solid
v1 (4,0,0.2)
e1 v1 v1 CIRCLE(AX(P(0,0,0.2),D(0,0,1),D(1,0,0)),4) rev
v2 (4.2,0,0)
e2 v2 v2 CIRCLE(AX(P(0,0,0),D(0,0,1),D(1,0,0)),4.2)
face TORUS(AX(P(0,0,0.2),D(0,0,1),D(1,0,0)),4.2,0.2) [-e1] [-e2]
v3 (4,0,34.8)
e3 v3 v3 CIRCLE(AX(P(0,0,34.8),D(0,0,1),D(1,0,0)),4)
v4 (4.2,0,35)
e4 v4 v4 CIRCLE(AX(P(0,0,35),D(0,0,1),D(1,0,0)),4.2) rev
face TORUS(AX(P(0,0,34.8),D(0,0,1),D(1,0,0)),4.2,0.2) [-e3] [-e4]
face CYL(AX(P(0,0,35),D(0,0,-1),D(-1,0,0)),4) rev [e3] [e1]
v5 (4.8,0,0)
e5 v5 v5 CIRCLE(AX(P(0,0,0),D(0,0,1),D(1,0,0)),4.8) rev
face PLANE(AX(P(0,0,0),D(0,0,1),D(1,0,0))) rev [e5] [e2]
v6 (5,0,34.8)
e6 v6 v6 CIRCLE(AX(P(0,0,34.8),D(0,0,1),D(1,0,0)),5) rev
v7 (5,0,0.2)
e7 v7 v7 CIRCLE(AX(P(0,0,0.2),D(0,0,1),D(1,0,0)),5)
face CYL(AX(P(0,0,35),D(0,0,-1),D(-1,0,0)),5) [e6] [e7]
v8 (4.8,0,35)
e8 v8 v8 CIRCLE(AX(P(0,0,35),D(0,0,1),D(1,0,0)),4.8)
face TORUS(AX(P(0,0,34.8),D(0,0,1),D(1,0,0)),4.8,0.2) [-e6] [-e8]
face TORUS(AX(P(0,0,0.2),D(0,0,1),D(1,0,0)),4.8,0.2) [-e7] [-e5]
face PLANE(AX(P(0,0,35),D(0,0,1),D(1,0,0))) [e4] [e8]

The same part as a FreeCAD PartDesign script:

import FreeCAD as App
import Part
import Sketcher
from FreeCAD import Vector


def edges_at(feature, points):
    """Names of the edges that pass closest to the given points."""
    edges = feature.Shape.Edges
    near = lambda p: min(range(len(edges)), key=lambda i: edges[i].distToShape(Part.Vertex(*p))[0])
    return sorted({f"Edge{near(p) + 1}" for p in points})

doc = App.newDocument("Part")
body = doc.addObject("PartDesign::Body", "Body")

# Sketch on XY plane
sketch1 = body.newObject("Sketcher::SketchObject", "Sketch")
sketch1.AttachmentSupport = (doc.getObject("XY_Plane"), [""])
sketch1.MapMode = "FlatFace"
sketch1.addGeometry([
    Part.Circle(Vector(0, 0, 0), Vector(0, 0, 1), 5),
    Part.Circle(Vector(0, 0, 0), Vector(0, 0, 1), 4),
], False)
sketch1.addConstraint([
    Sketcher.Constraint("Coincident", 0, 3, -1, 1),
    Sketcher.Constraint("Coincident", 1, 3, -1, 1),
    Sketcher.Constraint("Diameter", 0, 10.0),
    Sketcher.Constraint("Diameter", 1, 8.0),
])
pad1 = body.newObject("PartDesign::Pad", "Pad")
pad1.Profile = sketch1
pad1.Length = 35
doc.recompute()

fillet = body.newObject("PartDesign::Fillet", "Fillet")
fillet.Base = (pad1, edges_at(pad1, [
    (-5, 0, 0),
    (-5, 0, 35),
    (-4, 0, 0),
    (-4, 0, 35),
]))
fillet.Radius = 0.2

doc.recompute()
